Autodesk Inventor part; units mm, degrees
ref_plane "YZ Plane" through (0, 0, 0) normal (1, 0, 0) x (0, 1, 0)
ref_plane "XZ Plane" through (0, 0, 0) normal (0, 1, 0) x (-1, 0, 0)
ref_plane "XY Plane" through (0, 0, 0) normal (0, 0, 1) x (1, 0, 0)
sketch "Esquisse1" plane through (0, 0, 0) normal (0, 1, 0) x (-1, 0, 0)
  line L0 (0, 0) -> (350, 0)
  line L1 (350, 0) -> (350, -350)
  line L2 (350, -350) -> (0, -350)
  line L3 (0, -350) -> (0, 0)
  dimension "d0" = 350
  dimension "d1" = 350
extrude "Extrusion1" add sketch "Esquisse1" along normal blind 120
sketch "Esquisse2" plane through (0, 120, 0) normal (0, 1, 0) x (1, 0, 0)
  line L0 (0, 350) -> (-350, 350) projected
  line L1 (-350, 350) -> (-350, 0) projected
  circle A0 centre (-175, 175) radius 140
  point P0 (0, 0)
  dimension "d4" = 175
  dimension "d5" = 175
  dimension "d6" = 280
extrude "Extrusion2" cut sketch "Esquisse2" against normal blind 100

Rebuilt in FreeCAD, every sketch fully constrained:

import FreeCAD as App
import Part
import Sketcher
from FreeCAD import Vector

doc = App.newDocument("Part")
body = doc.addObject("PartDesign::Body", "Body")

# Sketch on XZ plane
sketch1 = body.newObject("Sketcher::SketchObject", "Sketch")
sketch1.AttachmentSupport = (doc.getObject("XZ_Plane"), [""])
sketch1.MapMode = "FlatFace"
sketch1.addGeometry([
    Part.LineSegment(Vector(-350, 0, 0), Vector(0, 0, 0)),
    Part.LineSegment(Vector(0, 0, 0), Vector(0, -350, 0)),
    Part.LineSegment(Vector(0, -350, 0), Vector(-350, -350, 0)),
    Part.LineSegment(Vector(-350, -350, 0), Vector(-350, 0, 0)),
], False)
sketch1.addConstraint([
    Sketcher.Constraint("Coincident", 0, 2, 1, 1),
    Sketcher.Constraint("Coincident", 1, 2, 2, 1),
    Sketcher.Constraint("Coincident", 2, 2, 3, 1),
    Sketcher.Constraint("Coincident", 3, 2, 0, 1),
    Sketcher.Constraint("Horizontal", 0),
    Sketcher.Constraint("Vertical", 1),
    Sketcher.Constraint("Horizontal", 2),
    Sketcher.Constraint("Vertical", 3),
    Sketcher.Constraint("Coincident", 0, 2, -1, 1),
    Sketcher.Constraint("Equal", 2, 1),
    Sketcher.Constraint("DistanceX", 0, 1, 0, 2, 350.0),
])
pad1 = body.newObject("PartDesign::Pad", "Pad")
pad1.Profile = sketch1
pad1.Length = 120
pad1.Reversed = True

# Sketch on XZ plane
sketch2 = body.newObject("Sketcher::SketchObject", "Sketch001")
sketch2.AttachmentSupport = (doc.getObject("XZ_Plane"), [""])
sketch2.MapMode = "FlatFace"
sketch2.AttachmentOffset = App.Placement(Vector(0, 0, -120), App.Rotation())
sketch2.addGeometry(Part.Circle(Vector(-175, -175, 0), Vector(0, 0, 1), 140), False)
sketch2.addConstraint([
    Sketcher.Constraint("Diameter", 0, 280.0),
    Sketcher.Constraint("DistanceX", 0, 3, -1, 1, 175.0),
    Sketcher.Constraint("DistanceY", 0, 3, -1, 1, 175.0),
])
pocket1 = body.newObject("PartDesign::Pocket", "Pocket")
pocket1.Profile = sketch2
pocket1.Length = 100
pocket1.Reversed = True

doc.recompute()
